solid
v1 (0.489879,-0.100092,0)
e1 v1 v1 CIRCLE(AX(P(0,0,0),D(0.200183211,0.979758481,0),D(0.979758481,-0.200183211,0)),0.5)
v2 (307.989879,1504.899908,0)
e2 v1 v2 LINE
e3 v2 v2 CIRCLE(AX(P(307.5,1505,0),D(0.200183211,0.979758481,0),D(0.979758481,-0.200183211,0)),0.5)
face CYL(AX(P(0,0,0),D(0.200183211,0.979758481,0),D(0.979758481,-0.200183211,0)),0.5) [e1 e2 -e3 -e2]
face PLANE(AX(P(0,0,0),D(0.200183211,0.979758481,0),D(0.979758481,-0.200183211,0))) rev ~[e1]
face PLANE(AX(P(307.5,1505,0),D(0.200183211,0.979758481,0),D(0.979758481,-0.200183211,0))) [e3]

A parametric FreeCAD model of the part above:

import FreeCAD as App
import Part
import Sketcher

V = App.Vector

doc = App.newDocument("Part")
body = doc.addObject("PartDesign::Body", "Body")

# Sketch on an angled plane
sketch1 = doc.addObject("Sketcher::SketchObject", "Sketch")
body.addObject(sketch1)
sketch1.Placement = App.Placement(V(0, 0, 0), App.Rotation(V(0.979758481, -0.200183211, 0), V(0, 0, -0.999999999), V(0.200183211, 0.979758481, 0), "ZXY"))
sketch1.addGeometry(Part.Circle(V(0, 0, 0), V(0, 0, 1), 0.5), False)
sketch1.addConstraint([
    Sketcher.Constraint("Coincident", 0, 3, -1, 1),
    Sketcher.Constraint("Diameter", 0, 1.0),
])

# Sketch on an angled plane
sketch2 = doc.addObject("Sketcher::SketchObject", "Sketch001")
body.addObject(sketch2)
sketch2.Placement = App.Placement(V(0, 0, 0), App.Rotation(V(0.200183211, 0.979758481, 0), V(0, 0, 0.999999999), V(0.979758481, -0.200183211, 0), "ZXY"))
sketch2.addGeometry(Part.LineSegment(V(0, 0, 0), V(1536, 0, 0)), False)
sketch2.addConstraint([
    Sketcher.Constraint("Horizontal", 0),
    Sketcher.Constraint("Coincident", 0, 1, -1, 1),
    Sketcher.Constraint("DistanceX", 0, 1, 0, 2, 1536.092851),
])
doc.recompute()

additivepipe = doc.addObject("PartDesign::AdditivePipe", "AdditivePipe")
body.addObject(additivepipe)
additivepipe.Profile = sketch1
additivepipe.Spine = (sketch2, ["Edge1"])

doc.recompute()
